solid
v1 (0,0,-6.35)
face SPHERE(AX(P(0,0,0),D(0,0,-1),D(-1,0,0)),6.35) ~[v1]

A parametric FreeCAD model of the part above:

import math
import FreeCAD as App
import Part
import Sketcher
from FreeCAD import Vector
Q = App.Units.Quantity

doc = App.newDocument("Part")
body = doc.addObject("PartDesign::Body", "Body")

# Sketch on XZ plane
sketch1 = body.newObject("Sketcher::SketchObject", "Sketch")
sketch1.AttachmentSupport = (doc.getObject("XZ_Plane"), [""])
sketch1.MapMode = "FlatFace"
sketch1.addGeometry([
    Part.LineSegment(Vector(0, 6.35, 0), Vector(0, -6.35, 0)),
    Part.ArcOfCircle(Part.Circle(Vector(0, 0, 0), Vector(0, 0, 1), 6.35), math.radians(90), math.radians(270)),
], False)
sketch1.addConstraint([
    Sketcher.Constraint("Coincident", 0, 1, 1, 1),
    Sketcher.Constraint("Coincident", 1, 2, 0, 2),
    Sketcher.Constraint("Vertical", 0),
    Sketcher.Constraint("Coincident", 1, 3, -1, 1),
    Sketcher.Constraint("PointOnObject", 0, 1, -2),
    Sketcher.Constraint("Radius", 1, Q("0.25 in")),
])
revolution = body.newObject("PartDesign::Revolution", "Revolution")
revolution.Profile = sketch1
revolution.ReferenceAxis = (sketch1, ["V_Axis"])
revolution.Angle = 360

doc.recompute()
